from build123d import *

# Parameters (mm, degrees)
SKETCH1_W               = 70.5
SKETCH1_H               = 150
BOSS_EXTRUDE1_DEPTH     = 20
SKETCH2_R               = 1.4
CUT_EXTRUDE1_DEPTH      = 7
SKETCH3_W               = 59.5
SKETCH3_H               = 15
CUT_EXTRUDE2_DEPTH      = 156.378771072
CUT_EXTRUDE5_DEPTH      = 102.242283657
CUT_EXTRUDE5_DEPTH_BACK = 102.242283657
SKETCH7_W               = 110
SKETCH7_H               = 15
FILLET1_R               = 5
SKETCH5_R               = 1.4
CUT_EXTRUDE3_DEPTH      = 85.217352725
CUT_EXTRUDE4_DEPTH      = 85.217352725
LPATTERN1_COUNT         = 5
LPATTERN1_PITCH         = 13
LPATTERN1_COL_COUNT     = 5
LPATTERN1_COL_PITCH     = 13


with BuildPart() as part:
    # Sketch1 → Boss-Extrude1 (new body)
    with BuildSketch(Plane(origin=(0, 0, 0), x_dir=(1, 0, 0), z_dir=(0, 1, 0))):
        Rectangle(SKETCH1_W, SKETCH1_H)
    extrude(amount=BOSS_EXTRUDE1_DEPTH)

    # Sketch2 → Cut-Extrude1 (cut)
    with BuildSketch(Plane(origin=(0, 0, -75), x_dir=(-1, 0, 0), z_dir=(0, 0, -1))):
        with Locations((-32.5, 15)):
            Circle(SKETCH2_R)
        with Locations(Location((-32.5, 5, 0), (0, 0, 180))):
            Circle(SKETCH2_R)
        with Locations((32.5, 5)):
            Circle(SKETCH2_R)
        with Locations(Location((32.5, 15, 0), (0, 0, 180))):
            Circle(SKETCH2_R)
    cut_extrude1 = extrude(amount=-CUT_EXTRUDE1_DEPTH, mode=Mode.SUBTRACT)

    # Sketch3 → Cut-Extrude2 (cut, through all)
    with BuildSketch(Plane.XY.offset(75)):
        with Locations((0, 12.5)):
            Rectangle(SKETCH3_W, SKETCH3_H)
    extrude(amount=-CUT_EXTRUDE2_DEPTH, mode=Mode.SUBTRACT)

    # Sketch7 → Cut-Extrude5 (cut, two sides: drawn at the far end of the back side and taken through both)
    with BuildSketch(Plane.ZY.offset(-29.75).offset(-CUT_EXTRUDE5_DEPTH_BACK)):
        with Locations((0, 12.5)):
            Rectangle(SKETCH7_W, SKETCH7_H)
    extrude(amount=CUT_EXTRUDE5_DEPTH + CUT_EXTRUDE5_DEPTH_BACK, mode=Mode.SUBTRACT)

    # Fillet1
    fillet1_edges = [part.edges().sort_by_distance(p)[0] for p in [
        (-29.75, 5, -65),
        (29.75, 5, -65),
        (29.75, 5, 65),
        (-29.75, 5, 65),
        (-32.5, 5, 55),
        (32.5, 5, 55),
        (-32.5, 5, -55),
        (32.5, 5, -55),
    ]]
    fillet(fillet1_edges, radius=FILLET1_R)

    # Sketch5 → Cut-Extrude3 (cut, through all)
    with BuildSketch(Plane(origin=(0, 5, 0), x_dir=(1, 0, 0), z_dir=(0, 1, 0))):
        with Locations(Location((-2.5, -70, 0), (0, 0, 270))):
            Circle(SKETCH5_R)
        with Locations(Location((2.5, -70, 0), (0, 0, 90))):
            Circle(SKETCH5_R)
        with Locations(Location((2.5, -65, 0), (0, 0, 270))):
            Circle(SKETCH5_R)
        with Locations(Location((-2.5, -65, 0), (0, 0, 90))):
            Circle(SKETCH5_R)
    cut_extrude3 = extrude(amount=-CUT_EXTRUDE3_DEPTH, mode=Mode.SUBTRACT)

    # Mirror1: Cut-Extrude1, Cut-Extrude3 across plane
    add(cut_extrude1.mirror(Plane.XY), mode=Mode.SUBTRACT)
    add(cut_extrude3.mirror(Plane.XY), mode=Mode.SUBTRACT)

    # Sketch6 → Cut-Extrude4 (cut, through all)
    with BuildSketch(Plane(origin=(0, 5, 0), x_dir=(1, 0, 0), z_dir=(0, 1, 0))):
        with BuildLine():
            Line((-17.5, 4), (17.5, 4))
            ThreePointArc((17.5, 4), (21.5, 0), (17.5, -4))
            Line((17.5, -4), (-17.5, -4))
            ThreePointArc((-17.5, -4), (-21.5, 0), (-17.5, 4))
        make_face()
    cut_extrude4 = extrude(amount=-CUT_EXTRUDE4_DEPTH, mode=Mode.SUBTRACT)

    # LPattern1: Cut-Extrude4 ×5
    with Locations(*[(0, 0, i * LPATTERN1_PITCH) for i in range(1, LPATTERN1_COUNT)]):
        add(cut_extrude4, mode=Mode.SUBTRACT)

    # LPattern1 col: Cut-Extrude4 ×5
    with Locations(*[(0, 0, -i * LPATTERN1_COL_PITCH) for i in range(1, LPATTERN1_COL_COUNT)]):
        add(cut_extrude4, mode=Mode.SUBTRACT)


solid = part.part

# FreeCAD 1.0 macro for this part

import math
import FreeCAD as App
import Part
import Sketcher

V = App.Vector


def edges_at(feature, points):
    """Names of the edges that pass closest to the given points."""
    edges = feature.Shape.Edges
    near = lambda p: min(range(len(edges)), key=lambda i: edges[i].distToShape(Part.Vertex(*p))[0])
    return sorted({f"Edge{near(p) + 1}" for p in points})


def add_polygon(sketch, points):
    """Adds a closed chain of lines whose ends are joined by coincident constraints."""
    first, n = sketch.GeometryCount, len(points)
    for a, b in zip(points, points[1:] + points[:1]):
        sketch.addGeometry(Part.LineSegment(App.Vector(*a, 0), App.Vector(*b, 0)), False)
    for i in range(n):
        sketch.addConstraint(Sketcher.Constraint("Coincident", first + i, 2, first + (i + 1) % n, 1))

doc = App.newDocument("Part")
body = doc.addObject("PartDesign::Body", "Body")

# Sketch on XZ plane
sketch1 = body.newObject("Sketcher::SketchObject", "Sketch")
sketch1.AttachmentSupport = (doc.getObject("XZ_Plane"), [""])
sketch1.MapMode = "FlatFace"
add_polygon(sketch1, [(-35.25, -75), (-35.25, 75), (35.25, 75), (35.25, -75)])  # lines 0-3
sketch1.addConstraint([
    Sketcher.Constraint("Vertical", 0),
    Sketcher.Constraint("Horizontal", 1),
    Sketcher.Constraint("Vertical", 2),
    Sketcher.Constraint("Horizontal", 3),
    Sketcher.Constraint("Symmetric", 0, 2, 2, 2, -1, 1),
    Sketcher.Constraint("DistanceY", 0, 1, 0, 2, 150.0),
    Sketcher.Constraint("DistanceX", 1, 1, 1, 2, 70.5),
])
pad1 = body.newObject("PartDesign::Pad", "Pad")
pad1.Profile = sketch1
pad1.Length = 20
pad1.Reversed = True

# Sketch on XY plane
sketch2 = body.newObject("Sketcher::SketchObject", "Sketch001")
sketch2.AttachmentSupport = (doc.getObject("XY_Plane"), [""])
sketch2.MapMode = "FlatFace"
sketch2.AttachmentOffset = App.Placement(V(0, 0, -75), App.Rotation())
sketch2.addGeometry([
    Part.Circle(V(32.5, 15, 0), V(0, 0, 1), 1.4),
    Part.Circle(V(32.5, 5, 0), V(0, 0, 1), 1.4),
    Part.Circle(V(-32.5, 5, 0), V(0, 0, 1), 1.4),
    Part.Circle(V(-32.5, 15, 0), V(0, 0, 1), 1.4),
], False)
sketch2.addConstraint([
    Sketcher.Constraint("Equal", 0, 1),
    Sketcher.Constraint("Equal", 1, 2),
    Sketcher.Constraint("Equal", 2, 3),
    Sketcher.Constraint("Symmetric", 1, 3, 2, 3, -2),
    Sketcher.Constraint("Symmetric", 0, 3, 3, 3, -2),
    Sketcher.Constraint("Vertical", 0, 3, 1, 3),
    Sketcher.Constraint("Diameter", 0, 2.8),
    Sketcher.Constraint("DistanceY", -1, 1, 0, 3, 15.0),
    Sketcher.Constraint("DistanceY", -1, 1, 1, 3, 5.0),
    Sketcher.Constraint("DistanceX", 2, 3, 1, 3, 65.0),
])
pocket1 = body.newObject("PartDesign::Pocket", "Pocket")
pocket1.Profile = sketch2
pocket1.Length = 7
pocket1.Reversed = True

# Sketch on XY plane
sketch3 = body.newObject("Sketcher::SketchObject", "Sketch002")
sketch3.AttachmentSupport = (doc.getObject("XY_Plane"), [""])
sketch3.MapMode = "FlatFace"
sketch3.AttachmentOffset = App.Placement(V(0, 0, 75), App.Rotation())
add_polygon(sketch3, [(-29.75, 20), (-29.75, 5), (29.75, 5), (29.75, 20)])  # lines 0-3
sketch3.addConstraint([
    Sketcher.Constraint("Vertical", 0),
    Sketcher.Constraint("Horizontal", 1),
    Sketcher.Constraint("Vertical", 2),
    Sketcher.Constraint("Horizontal", 3),
    Sketcher.Constraint("DistanceY", 0, 2, 0, 1, 15.0),
    Sketcher.Constraint("DistanceX", 1, 1, 1, 2, 59.5),
    Sketcher.Constraint("DistanceY", -1, 1, 0, 2, 5.0),
    Sketcher.Constraint("DistanceX", 0, 2, -1, 1, 29.75),
])
pocket2 = body.newObject("PartDesign::Pocket", "Pocket001")
pocket2.Profile = sketch3
pocket2.Type = "ThroughAll"

# Sketch on YZ plane
sketch4 = body.newObject("Sketcher::SketchObject", "Sketch003")
sketch4.AttachmentSupport = (doc.getObject("YZ_Plane"), [""])
sketch4.MapMode = "FlatFace"
sketch4.AttachmentOffset = App.Placement(V(0, 0, 29.75), App.Rotation())
add_polygon(sketch4, [(20, -55), (5, -55), (5, 55), (20, 55)])  # lines 0-3
sketch4.addConstraint([
    Sketcher.Constraint("Horizontal", 0),
    Sketcher.Constraint("Vertical", 1),
    Sketcher.Constraint("Horizontal", 2),
    Sketcher.Constraint("Vertical", 3),
    Sketcher.Constraint("DistanceX", 0, 2, 0, 1, 15.0),
    Sketcher.Constraint("DistanceY", 1, 1, 1, 2, 110.0),
    Sketcher.Constraint("DistanceX", -1, 1, 0, 2, 5.0),
    Sketcher.Constraint("DistanceY", 0, 2, -1, 1, 55.0),
])
pocket3 = body.newObject("PartDesign::Pocket", "Pocket002")
pocket3.Profile = sketch4
pocket3.Type = "ThroughAll"
pocket3.Midplane = True
doc.recompute()

fillet = body.newObject("PartDesign::Fillet", "Fillet")
fillet.Base = (pocket3, edges_at(pocket3, [
    (-29.75, 5, -65),
    (29.75, 5, -65),
    (29.75, 5, 65),
    (-29.75, 5, 65),
    (-32.5, 5, 55),
    (32.5, 5, 55),
    (-32.5, 5, -55),
    (32.5, 5, -55),
]))
fillet.Radius = 5

# Sketch on XZ plane
sketch5 = body.newObject("Sketcher::SketchObject", "Sketch004")
sketch5.AttachmentSupport = (doc.getObject("XZ_Plane"), [""])
sketch5.MapMode = "FlatFace"
sketch5.AttachmentOffset = App.Placement(V(0, 0, -5), App.Rotation())
sketch5.addGeometry([
    Part.Circle(V(-2.5, 70, 0), V(0, 0, 1), 1.4),
    Part.Circle(V(2.5, 70, 0), V(0, 0, 1), 1.4),
    Part.Circle(V(2.5, 65, 0), V(0, 0, 1), 1.4),
    Part.Circle(V(-2.5, 65, 0), V(0, 0, 1), 1.4),
], False)
sketch5.addConstraint([
    Sketcher.Constraint("Equal", 0, 1),
    Sketcher.Constraint("Equal", 1, 2),
    Sketcher.Constraint("Equal", 2, 3),
    Sketcher.Constraint("Symmetric", 0, 3, 1, 3, -2),
    Sketcher.Constraint("Symmetric", 2, 3, 3, 3, -2),
    Sketcher.Constraint("Vertical", 1, 3, 2, 3),
    Sketcher.Constraint("Diameter", 0, 2.8),
    Sketcher.Constraint("DistanceY", -1, 1, 0, 3, 70.0),
    Sketcher.Constraint("DistanceY", -1, 1, 2, 3, 65.0),
    Sketcher.Constraint("DistanceX", 0, 3, 1, 3, 5.0),
])
pocket4 = body.newObject("PartDesign::Pocket", "Pocket003")
pocket4.Profile = sketch5
pocket4.Type = "ThroughAll"
pocket4.Reversed = True
doc.recompute()

mirrored = body.newObject("PartDesign::Mirrored", "Mirrored")
mirrored.Originals = [pocket1, pocket4]
mirrored.MirrorPlane = (doc.getObject("XY_Plane"), [""])
body.Tip = mirrored

# Sketch on XZ plane
sketch6 = body.newObject("Sketcher::SketchObject", "Sketch005")
sketch6.AttachmentSupport = (doc.getObject("XZ_Plane"), [""])
sketch6.MapMode = "FlatFace"
sketch6.AttachmentOffset = App.Placement(V(0, 0, -5), App.Rotation())
sketch6.addGeometry([
    Part.LineSegment(V(17.5, -4, 0), V(-17.5, -4, 0)),
    Part.ArcOfCircle(Part.Circle(V(-17.5, 0, 0), V(0, 0, 1), 4), math.radians(90), math.radians(270)),
    Part.LineSegment(V(-17.5, 4, 0), V(17.5, 4, 0)),
    Part.ArcOfCircle(Part.Circle(V(17.5, 0, 0), V(0, 0, 1), 4), math.radians(-90), math.radians(90)),
], False)
sketch6.addConstraint([
    Sketcher.Constraint("Tangent", 0, 2, 1, 2),
    Sketcher.Constraint("Tangent", 1, 1, 2, 1),
    Sketcher.Constraint("Tangent", 2, 2, 3, 2),
    Sketcher.Constraint("Tangent", 3, 1, 0, 1),
    Sketcher.Constraint("Horizontal", 0),
    Sketcher.Constraint("Horizontal", 2),
    Sketcher.Constraint("Symmetric", 1, 3, 3, 3, -1, 1),
    Sketcher.Constraint("Radius", 1, 4.0),
    Sketcher.Constraint("DistanceX", 0, 2, 0, 1, 35.0),
])
pocket5 = body.newObject("PartDesign::Pocket", "Pocket004")
pocket5.Profile = sketch6
pocket5.Type = "ThroughAll"
pocket5.Reversed = True
doc.recompute()

linearpattern = body.newObject("PartDesign::LinearPattern", "LinearPattern")
linearpattern.Originals = [pocket5]
linearpattern.Direction = (doc.getObject("Z_Axis"), [""])
linearpattern.Mode = "offset"
linearpattern.Offset = 13
linearpattern.Occurrences = 5
body.Tip = linearpattern
doc.recompute()

linearpattern2 = body.newObject("PartDesign::LinearPattern", "LinearPattern001")
linearpattern2.Originals = [pocket5]
linearpattern2.Direction = (doc.getObject("Z_Axis"), [""])
linearpattern2.Mode = "offset"
linearpattern2.Offset = 13
linearpattern2.Occurrences = 5
linearpattern2.Reversed = True
body.Tip = linearpattern2

doc.recompute()
